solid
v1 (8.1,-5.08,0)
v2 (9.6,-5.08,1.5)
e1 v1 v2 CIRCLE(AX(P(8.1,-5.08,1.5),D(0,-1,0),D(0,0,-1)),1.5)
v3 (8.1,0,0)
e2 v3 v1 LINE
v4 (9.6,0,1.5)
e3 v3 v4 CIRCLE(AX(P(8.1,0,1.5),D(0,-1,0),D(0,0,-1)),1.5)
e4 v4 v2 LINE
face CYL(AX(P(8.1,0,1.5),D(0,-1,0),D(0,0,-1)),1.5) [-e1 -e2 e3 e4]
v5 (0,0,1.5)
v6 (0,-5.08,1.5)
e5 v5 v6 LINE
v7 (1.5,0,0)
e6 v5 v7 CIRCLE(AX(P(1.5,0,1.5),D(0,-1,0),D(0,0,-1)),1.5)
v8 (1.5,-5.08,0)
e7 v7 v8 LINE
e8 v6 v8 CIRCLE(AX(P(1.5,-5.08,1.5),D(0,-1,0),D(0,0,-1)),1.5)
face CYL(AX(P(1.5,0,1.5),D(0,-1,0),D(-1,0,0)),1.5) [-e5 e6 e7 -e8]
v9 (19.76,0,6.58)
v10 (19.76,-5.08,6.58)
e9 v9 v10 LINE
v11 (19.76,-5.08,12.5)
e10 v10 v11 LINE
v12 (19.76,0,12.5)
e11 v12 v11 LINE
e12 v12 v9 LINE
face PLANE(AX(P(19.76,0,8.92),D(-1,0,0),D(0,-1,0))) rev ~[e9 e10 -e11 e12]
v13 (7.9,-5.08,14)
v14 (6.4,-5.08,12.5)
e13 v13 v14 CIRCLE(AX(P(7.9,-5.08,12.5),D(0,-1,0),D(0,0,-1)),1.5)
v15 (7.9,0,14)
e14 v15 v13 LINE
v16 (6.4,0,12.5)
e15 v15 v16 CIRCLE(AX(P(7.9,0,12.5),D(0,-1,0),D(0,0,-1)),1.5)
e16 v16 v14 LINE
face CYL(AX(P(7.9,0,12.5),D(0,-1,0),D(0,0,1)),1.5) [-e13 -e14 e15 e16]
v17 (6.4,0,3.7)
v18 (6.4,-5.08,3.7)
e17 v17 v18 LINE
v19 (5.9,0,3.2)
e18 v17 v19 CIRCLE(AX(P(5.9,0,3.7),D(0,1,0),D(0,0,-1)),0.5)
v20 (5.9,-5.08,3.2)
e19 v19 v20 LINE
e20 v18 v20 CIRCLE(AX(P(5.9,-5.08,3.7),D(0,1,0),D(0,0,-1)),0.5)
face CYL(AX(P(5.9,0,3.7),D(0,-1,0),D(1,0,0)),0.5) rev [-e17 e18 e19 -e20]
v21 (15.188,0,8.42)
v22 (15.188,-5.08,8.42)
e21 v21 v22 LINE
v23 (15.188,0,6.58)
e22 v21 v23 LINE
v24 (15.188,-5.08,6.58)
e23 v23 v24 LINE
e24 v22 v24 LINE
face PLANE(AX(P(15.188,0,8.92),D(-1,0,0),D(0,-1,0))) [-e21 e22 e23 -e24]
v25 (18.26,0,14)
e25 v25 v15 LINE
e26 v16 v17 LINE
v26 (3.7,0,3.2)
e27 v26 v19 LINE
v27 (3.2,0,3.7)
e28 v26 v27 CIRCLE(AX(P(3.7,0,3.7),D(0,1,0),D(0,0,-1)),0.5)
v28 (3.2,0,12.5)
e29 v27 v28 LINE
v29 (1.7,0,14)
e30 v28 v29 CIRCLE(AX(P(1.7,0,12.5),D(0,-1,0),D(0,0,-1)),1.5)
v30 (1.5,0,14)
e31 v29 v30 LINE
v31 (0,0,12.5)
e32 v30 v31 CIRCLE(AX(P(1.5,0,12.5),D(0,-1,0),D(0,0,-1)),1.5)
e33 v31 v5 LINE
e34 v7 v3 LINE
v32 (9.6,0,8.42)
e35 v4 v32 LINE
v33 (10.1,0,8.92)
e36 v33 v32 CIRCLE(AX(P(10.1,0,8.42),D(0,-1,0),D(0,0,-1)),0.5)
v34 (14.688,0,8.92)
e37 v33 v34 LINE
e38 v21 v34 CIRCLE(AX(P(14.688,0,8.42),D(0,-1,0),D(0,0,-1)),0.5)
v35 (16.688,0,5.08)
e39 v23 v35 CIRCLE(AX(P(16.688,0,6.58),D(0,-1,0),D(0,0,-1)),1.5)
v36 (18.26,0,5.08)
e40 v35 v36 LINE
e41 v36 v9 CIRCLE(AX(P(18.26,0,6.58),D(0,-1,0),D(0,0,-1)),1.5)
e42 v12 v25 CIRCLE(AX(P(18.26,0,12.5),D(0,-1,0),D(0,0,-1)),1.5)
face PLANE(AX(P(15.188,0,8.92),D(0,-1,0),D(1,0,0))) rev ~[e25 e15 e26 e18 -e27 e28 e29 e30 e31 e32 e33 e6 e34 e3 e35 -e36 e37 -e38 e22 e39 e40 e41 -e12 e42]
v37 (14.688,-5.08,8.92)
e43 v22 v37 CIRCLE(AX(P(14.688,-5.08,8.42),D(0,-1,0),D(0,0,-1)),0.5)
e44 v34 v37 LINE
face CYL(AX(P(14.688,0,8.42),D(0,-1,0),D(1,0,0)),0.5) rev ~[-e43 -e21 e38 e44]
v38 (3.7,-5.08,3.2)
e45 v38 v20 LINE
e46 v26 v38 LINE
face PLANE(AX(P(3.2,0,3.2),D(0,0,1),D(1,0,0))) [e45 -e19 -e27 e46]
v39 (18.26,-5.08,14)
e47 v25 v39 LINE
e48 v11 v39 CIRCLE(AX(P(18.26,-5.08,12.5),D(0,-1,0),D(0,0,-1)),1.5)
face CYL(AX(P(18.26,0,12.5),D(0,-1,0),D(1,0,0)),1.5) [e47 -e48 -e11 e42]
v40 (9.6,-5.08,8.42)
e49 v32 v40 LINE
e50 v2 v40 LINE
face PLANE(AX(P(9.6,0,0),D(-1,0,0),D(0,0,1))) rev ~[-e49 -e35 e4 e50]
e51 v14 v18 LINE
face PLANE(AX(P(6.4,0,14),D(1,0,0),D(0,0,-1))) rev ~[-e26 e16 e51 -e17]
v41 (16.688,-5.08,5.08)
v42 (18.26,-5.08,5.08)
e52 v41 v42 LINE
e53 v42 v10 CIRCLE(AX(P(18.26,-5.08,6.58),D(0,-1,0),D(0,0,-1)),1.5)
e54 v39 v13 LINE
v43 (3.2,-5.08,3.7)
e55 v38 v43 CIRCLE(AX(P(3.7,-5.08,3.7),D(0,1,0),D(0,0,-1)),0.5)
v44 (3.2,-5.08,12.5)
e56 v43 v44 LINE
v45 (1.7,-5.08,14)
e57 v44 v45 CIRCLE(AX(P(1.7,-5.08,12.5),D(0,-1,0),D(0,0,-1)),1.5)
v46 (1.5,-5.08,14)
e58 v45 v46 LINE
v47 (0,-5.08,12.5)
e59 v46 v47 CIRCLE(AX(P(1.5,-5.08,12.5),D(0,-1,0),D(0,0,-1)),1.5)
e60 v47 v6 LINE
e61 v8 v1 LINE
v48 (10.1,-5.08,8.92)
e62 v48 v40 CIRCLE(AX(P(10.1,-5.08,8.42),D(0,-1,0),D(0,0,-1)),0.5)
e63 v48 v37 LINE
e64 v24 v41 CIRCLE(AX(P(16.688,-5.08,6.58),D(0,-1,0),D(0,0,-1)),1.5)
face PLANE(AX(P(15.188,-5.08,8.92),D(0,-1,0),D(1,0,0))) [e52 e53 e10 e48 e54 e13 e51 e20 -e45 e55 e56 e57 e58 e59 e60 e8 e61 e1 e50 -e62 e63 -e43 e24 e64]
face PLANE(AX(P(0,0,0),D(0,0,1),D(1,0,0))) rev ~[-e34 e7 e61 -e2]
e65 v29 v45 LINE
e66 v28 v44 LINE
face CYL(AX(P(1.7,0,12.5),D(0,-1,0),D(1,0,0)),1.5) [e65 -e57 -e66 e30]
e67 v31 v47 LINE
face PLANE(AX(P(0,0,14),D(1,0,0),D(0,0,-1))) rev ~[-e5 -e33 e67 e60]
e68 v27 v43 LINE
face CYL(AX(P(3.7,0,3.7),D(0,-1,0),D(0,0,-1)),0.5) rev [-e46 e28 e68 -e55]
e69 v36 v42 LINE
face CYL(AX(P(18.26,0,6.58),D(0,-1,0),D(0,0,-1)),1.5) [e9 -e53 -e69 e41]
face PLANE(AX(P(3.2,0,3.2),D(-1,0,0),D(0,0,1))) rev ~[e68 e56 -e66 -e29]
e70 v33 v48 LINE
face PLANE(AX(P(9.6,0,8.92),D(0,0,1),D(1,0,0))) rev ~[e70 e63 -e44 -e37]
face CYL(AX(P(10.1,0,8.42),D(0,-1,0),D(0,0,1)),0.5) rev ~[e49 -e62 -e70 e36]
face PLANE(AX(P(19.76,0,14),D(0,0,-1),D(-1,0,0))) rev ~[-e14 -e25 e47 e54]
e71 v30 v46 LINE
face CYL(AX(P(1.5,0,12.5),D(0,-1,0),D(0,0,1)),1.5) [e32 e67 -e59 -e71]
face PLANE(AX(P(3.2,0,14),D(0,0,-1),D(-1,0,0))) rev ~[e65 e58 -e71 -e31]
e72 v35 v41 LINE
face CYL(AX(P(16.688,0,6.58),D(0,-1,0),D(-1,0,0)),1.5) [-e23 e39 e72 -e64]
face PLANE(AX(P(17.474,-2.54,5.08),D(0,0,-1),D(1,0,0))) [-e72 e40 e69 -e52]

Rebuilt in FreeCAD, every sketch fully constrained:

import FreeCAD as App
import Part
import Sketcher
from FreeCAD import Vector


def edges_at(feature, points):
    """Names of the edges that pass closest to the given points."""
    edges = feature.Shape.Edges
    near = lambda p: min(range(len(edges)), key=lambda i: edges[i].distToShape(Part.Vertex(*p))[0])
    return sorted({f"Edge{near(p) + 1}" for p in points})


def add_polygon(sketch, points):
    """Adds a closed chain of lines whose ends are joined by coincident constraints."""
    first, n = sketch.GeometryCount, len(points)
    for a, b in zip(points, points[1:] + points[:1]):
        sketch.addGeometry(Part.LineSegment(App.Vector(*a, 0), App.Vector(*b, 0)), False)
    for i in range(n):
        sketch.addConstraint(Sketcher.Constraint("Coincident", first + i, 2, first + (i + 1) % n, 1))

doc = App.newDocument("Part")
params = doc.addObject("Spreadsheet::Sheet", "Params")
for row, (alias, value) in enumerate([
    ("sketch1_height", "14 mm"),
    ("sketch1_width", "3.2 mm"),
    ("sketch1_width2", "9.6 mm"),
    ("sketch1_height2", "10.8 mm"),
    ("sketch1_width3", "10.16 mm"),
    ("pad1_length", "5.08 mm"),
    ("sketch2_height", "5.08 mm"),
    ("pad2_length", "3.84 mm"),
    ("fillet_radius", "1.5 mm"),
    ("fillet2_radius", "0.5 mm"),
], start=1):
    params.set(f"A{row}", alias)
    params.set(f"B{row}", "=" + value)
    params.setAlias(f"B{row}", alias)

body = doc.addObject("PartDesign::Body", "Body")

# Sketch on XZ plane
sketch1 = body.newObject("Sketcher::SketchObject", "Sketch")
sketch1.AttachmentSupport = (doc.getObject("XZ_Plane"), [""])
sketch1.MapMode = "FlatFace"
add_polygon(sketch1, [(9.6, 8.9), (19.8, 8.9), (19.8, 14), (6.4, 14), (6.4, 3.2), (3.2, 3.2), (3.2, 14), (0, 14), (0, 0), (9.6, 0)])  # lines 0-9
sketch1.addConstraint(Sketcher.Constraint("Horizontal", 0))
sketch1.addConstraint(Sketcher.Constraint("Vertical", 1))
sketch1.addConstraint(Sketcher.Constraint("Horizontal", 2))
sketch1.addConstraint(Sketcher.Constraint("Vertical", 3))
sketch1.addConstraint(Sketcher.Constraint("Horizontal", 4))
sketch1.addConstraint(Sketcher.Constraint("Vertical", 5))
sketch1.addConstraint(Sketcher.Constraint("Horizontal", 6))
sketch1.addConstraint(Sketcher.Constraint("Vertical", 7))
sketch1.addConstraint(Sketcher.Constraint("Horizontal", 8))
sketch1.addConstraint(Sketcher.Constraint("Vertical", 9))
sketch1.addConstraint(Sketcher.Constraint("Coincident", 7, 2, -1, 1))
sketch1.addConstraint(Sketcher.Constraint("Horizontal", 2, 2, 5, 2))
sketch1.addConstraint(Sketcher.Constraint("Equal", 4, 6))
sketch1.addConstraint(Sketcher.Constraint("DistanceY", 7, 2, 7, 1, 14.0))
sketch1.addConstraint(Sketcher.Constraint("DistanceX", 4, 2, 4, 1, 3.2))
sketch1.addConstraint(Sketcher.Constraint("DistanceX", 8, 1, 8, 2, 9.6))
sketch1.addConstraint(Sketcher.Constraint("DistanceY", 3, 2, 3, 1, 10.8))
sketch1.addConstraint(Sketcher.Constraint("DistanceX", 0, 1, 0, 2, 10.16))
sketch1.addConstraint(Sketcher.Constraint("DistanceY", 1, 1, 1, 2, 5.08))
sketch1.setExpression("Constraints[23]", "Params.sketch1_height")
sketch1.setExpression("Constraints[24]", "Params.sketch1_width")
sketch1.setExpression("Constraints[25]", "Params.sketch1_width2")
sketch1.setExpression("Constraints[26]", "Params.sketch1_height2")
sketch1.setExpression("Constraints[27]", "Params.sketch1_width3")
pad1 = body.newObject("PartDesign::Pad", "Pad")
pad1.Profile = sketch1
pad1.setExpression("Length", "Params.pad1_length")

# Sketch on XY plane
sketch2 = body.newObject("Sketcher::SketchObject", "Sketch001")
sketch2.AttachmentSupport = (doc.getObject("XY_Plane"), [""])
sketch2.MapMode = "FlatFace"
sketch2.AttachmentOffset = App.Placement(Vector(0, 0, 8.92), App.Rotation())
add_polygon(sketch2, [(15.2, -5.1), (15.2, 0), (19.8, 0), (19.8, -5.1)])  # lines 0-3
sketch2.addConstraint(Sketcher.Constraint("Vertical", 0))
sketch2.addConstraint(Sketcher.Constraint("Horizontal", 1))
sketch2.addConstraint(Sketcher.Constraint("Vertical", 2))
sketch2.addConstraint(Sketcher.Constraint("Horizontal", 3))
sketch2.addConstraint(Sketcher.Constraint("PointOnObject", 0, 2, -1))
sketch2.addConstraint(Sketcher.Constraint("DistanceY", 0, 1, 0, 2, 5.08))
sketch2.addConstraint(Sketcher.Constraint("DistanceX", 1, 1, 1, 2, 4.572))
sketch2.addConstraint(Sketcher.Constraint("DistanceX", -1, 1, 1, 2, 19.76))
sketch2.setExpression("Constraints[9]", "Params.sketch2_height")
pad2 = body.newObject("PartDesign::Pad", "Pad001")
pad2.Profile = sketch2
pad2.setExpression("Length", "Params.pad2_length")
pad2.Reversed = True
doc.recompute()

fillet = body.newObject("PartDesign::Fillet", "Fillet")
fillet.Base = (pad2, edges_at(pad2, [
    (0, -2.54, 0),
    (9.6, -2.54, 0),
    (0, -2.54, 14),
    (3.2, -2.54, 14),
    (6.4, -2.54, 14),
    (19.76, -2.54, 14),
    (19.76, -2.54, 5.08),
    (15.188, -2.54, 5.08),
]))
fillet.setExpression("Radius", "Params.fillet_radius")
doc.recompute()

fillet2 = body.newObject("PartDesign::Fillet", "Fillet001")
fillet2.Base = (fillet, edges_at(fillet, [
    (6.4, -2.54, 3.2),
    (3.2, -2.54, 3.2),
    (15.188, -2.54, 8.92),
    (9.6, -2.54, 8.92),
]))
fillet2.setExpression("Radius", "Params.fillet2_radius")

doc.recompute()
